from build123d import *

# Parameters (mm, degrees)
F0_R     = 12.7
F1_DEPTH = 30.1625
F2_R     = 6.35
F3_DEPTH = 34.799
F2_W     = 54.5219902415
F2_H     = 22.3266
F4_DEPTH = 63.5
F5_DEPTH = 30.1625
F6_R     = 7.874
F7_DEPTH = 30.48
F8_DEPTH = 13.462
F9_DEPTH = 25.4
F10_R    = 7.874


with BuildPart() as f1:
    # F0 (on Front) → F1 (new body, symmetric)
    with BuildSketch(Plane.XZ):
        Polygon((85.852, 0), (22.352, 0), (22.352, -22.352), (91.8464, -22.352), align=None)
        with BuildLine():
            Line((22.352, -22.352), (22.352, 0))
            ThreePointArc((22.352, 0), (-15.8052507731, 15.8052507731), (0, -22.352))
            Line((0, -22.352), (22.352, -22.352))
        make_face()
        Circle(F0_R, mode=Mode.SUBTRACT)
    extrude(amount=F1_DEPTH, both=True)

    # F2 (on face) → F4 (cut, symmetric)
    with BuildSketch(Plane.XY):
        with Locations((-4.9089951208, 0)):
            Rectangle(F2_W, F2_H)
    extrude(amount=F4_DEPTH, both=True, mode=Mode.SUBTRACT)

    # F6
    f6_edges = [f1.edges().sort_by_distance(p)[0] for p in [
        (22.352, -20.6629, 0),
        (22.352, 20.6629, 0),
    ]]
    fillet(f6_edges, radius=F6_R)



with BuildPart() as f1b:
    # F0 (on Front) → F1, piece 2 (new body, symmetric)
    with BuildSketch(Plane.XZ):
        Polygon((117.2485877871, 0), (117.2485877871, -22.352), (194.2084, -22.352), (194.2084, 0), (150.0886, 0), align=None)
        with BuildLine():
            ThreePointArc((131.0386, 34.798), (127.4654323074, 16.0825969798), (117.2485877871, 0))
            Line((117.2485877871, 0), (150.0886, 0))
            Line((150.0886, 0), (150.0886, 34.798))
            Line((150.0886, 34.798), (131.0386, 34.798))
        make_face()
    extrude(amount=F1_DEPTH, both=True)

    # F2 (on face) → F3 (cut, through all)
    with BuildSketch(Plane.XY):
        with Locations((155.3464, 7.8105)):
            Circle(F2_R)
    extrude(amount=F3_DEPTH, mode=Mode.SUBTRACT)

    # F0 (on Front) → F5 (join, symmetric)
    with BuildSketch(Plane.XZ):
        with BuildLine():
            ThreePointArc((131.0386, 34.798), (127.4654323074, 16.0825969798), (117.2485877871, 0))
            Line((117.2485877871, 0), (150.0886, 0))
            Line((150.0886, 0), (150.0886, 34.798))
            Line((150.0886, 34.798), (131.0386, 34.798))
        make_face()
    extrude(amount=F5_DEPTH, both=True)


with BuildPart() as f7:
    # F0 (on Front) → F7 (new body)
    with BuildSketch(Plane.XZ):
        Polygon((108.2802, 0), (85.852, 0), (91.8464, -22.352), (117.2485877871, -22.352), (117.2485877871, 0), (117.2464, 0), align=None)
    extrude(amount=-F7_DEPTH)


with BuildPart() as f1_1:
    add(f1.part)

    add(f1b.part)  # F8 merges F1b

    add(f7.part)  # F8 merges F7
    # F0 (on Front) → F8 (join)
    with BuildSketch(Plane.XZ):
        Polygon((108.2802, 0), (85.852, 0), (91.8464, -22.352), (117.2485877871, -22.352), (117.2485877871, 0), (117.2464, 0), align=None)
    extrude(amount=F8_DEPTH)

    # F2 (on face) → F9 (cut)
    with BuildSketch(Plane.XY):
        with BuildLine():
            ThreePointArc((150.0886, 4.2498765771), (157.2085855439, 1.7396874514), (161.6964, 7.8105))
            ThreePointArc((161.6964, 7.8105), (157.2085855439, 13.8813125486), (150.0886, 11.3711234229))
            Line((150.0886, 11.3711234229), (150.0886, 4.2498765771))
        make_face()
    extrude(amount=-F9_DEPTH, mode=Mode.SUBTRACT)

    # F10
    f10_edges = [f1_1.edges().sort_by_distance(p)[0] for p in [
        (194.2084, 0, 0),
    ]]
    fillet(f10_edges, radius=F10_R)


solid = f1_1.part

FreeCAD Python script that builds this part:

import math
import FreeCAD as App
import Part
import Sketcher

V = App.Vector
Q = App.Units.Quantity


def edges_at(feature, points):
    """Names of the edges that pass closest to the given points."""
    edges = feature.Shape.Edges
    near = lambda p: min(range(len(edges)), key=lambda i: edges[i].distToShape(Part.Vertex(*p))[0])
    return sorted({f"Edge{near(p) + 1}" for p in points})


def add_polygon(sketch, points):
    """Adds a closed chain of lines whose ends are joined by coincident constraints."""
    first, n = sketch.GeometryCount, len(points)
    for a, b in zip(points, points[1:] + points[:1]):
        sketch.addGeometry(Part.LineSegment(App.Vector(*a, 0), App.Vector(*b, 0)), False)
    for i in range(n):
        sketch.addConstraint(Sketcher.Constraint("Coincident", first + i, 2, first + (i + 1) % n, 1))

doc = App.newDocument("Part")
body = doc.addObject("PartDesign::Body", "Body")

sketch1 = body.newObject("Sketcher::SketchObject", "Sketch")
sketch1.AttachmentSupport = (doc.getObject("XZ_Plane"), [""])
sketch1.MapMode = "FlatFace"
sketch1.addGeometry([
    Part.LineSegment(V(85.852, 0, 0), V(22.352, 0, 0)),
    Part.ArcOfCircle(Part.Circle(V(0, 0, 0), V(0, 0, 1), 22.352), math.radians(0), math.radians(270)),
    Part.LineSegment(V(0, -22.352, 0), V(91.8464, -22.352, 0)),
    Part.LineSegment(V(91.8464, -22.352, 0), V(85.852, 0, 0)),
    Part.Circle(V(0, 0, 0), V(0, 0, 1), 12.7),
], False)
sketch1.addConstraint([
    Sketcher.Constraint("Coincident", 0, 2, 1, 1),
    Sketcher.Constraint("Tangent", 1, 2, 2, 1),
    Sketcher.Constraint("Coincident", 2, 2, 3, 1),
    Sketcher.Constraint("Coincident", 3, 2, 0, 1),
    Sketcher.Constraint("Horizontal", 0),
    Sketcher.Constraint("Horizontal", 2),
    Sketcher.Constraint("Coincident", 1, 3, -1, 1),
    Sketcher.Constraint("Coincident", 4, 3, -1, 1),
    Sketcher.Constraint("PointOnObject", 0, 2, -1),
    Sketcher.Constraint("Diameter", 4, Q("1 in")),
    Sketcher.Constraint("Radius", 1, Q("0.88 in")),
    Sketcher.Constraint("DistanceX", 0, 2, 0, 1, Q("2.5 in")),
    Sketcher.Constraint("DistanceX", 2, 1, 2, 2, Q("3.616 in")),
])
pad1 = body.newObject("PartDesign::Pad", "Pad")
pad1.Profile = sketch1
pad1.Length = Q("2.375 in")
pad1.Midplane = True

sketch2 = body.newObject("Sketcher::SketchObject", "Sketch001")
sketch2.AttachmentSupport = (doc.getObject("XY_Plane"), [""])
sketch2.MapMode = "FlatFace"
add_polygon(sketch2, [(-32.16999, 11.1633), (-32.16999, -11.1633), (22.352, -11.1633), (22.352, 11.1633)])
sketch2.addConstraint([
    Sketcher.Constraint("Vertical", 0),
    Sketcher.Constraint("Horizontal", 1),
    Sketcher.Constraint("Vertical", 2),
    Sketcher.Constraint("Horizontal", 3),
    Sketcher.Constraint("DistanceY", 0, 2, 0, 1, Q("0.879 in")),
    Sketcher.Constraint("DistanceX", -1, 1, 1, 2, Q("0.88 in")),
    Sketcher.Constraint("DistanceY", 0, 2, -1, 1, Q("0.4395 in")),
    Sketcher.Constraint("DistanceX", 1, 1, 1, 2, Q("54.52199 mm")),
])
pocket1 = body.newObject("PartDesign::Pocket", "Pocket")
pocket1.Profile = sketch2
pocket1.Length = Q("5 in")
pocket1.Midplane = True
doc.recompute()

fillet = body.newObject("PartDesign::Fillet", "Fillet")
fillet.Base = (pocket1, edges_at(pocket1, [(22.352, -20.663, 0), (22.352, 20.663, 0)]))
fillet.Radius = Q("0.31 in")
body2 = doc.addObject("PartDesign::Body", "Body001")

sketch3 = body2.newObject("Sketcher::SketchObject", "Sketch002")
sketch3.AttachmentSupport = (doc.getObject("XZ_Plane001"), [""])
sketch3.MapMode = "FlatFace"
sketch3.addGeometry([
    Part.LineSegment(V(117.248588, 0, 0), V(117.248588, -22.352, 0)),
    Part.LineSegment(V(117.248588, -22.352, 0), V(194.2084, -22.352, 0)),
    Part.LineSegment(V(194.2084, -22.352, 0), V(194.2084, 0, 0)),
    Part.LineSegment(V(194.2084, 0, 0), V(150.0886, 0, 0)),
    Part.LineSegment(V(150.0886, 0, 0), V(150.0886, 34.798, 0)),
    Part.LineSegment(V(150.0886, 34.798, 0), V(131.0386, 34.798, 0)),
    Part.ArcOfCircle(Part.Circle(V(80.2386, 34.798, 0), V(0, 0, 1), 50.8), math.radians(-43.235607), math.radians(0)),
], False)
sketch3.addConstraint([
    Sketcher.Constraint("Coincident", 0, 2, 1, 1),
    Sketcher.Constraint("Coincident", 1, 2, 2, 1),
    Sketcher.Constraint("Coincident", 2, 2, 3, 1),
    Sketcher.Constraint("Coincident", 3, 2, 4, 1),
    Sketcher.Constraint("Coincident", 4, 2, 5, 1),
    Sketcher.Constraint("Coincident", 5, 2, 6, 2),
    Sketcher.Constraint("Coincident", 6, 1, 0, 1),
    Sketcher.Constraint("Vertical", 0),
    Sketcher.Constraint("Horizontal", 1),
    Sketcher.Constraint("Vertical", 2),
    Sketcher.Constraint("Horizontal", 3),
    Sketcher.Constraint("Vertical", 4),
    Sketcher.Constraint("Horizontal", 5),
    Sketcher.Constraint("PointOnObject", 2, 2, -1),
    Sketcher.Constraint("PointOnObject", 6, 1, -1),
    Sketcher.Constraint("Horizontal", 6, 3, 4, 2),
    Sketcher.Constraint("Radius", 6, Q("2 in")),
    Sketcher.Constraint("DistanceX", 5, 2, 5, 1, Q("0.75 in")),
    Sketcher.Constraint("DistanceY", 0, 2, 0, 1, Q("0.88 in")),
    Sketcher.Constraint("DistanceY", 4, 1, 4, 2, Q("1.37 in")),
    Sketcher.Constraint("DistanceX", 3, 2, 3, 1, Q("1.737 in")),
    Sketcher.Constraint("DistanceX", -1, 1, 6, 3, Q("3.159 in")),
])
pad2 = body2.newObject("PartDesign::Pad", "Pad001")
pad2.Profile = sketch3
pad2.Length = Q("2.375 in")
pad2.Midplane = True

sketch4 = body2.newObject("Sketcher::SketchObject", "Sketch003")
sketch4.AttachmentSupport = (doc.getObject("XY_Plane001"), [""])
sketch4.MapMode = "FlatFace"
sketch4.addGeometry(Part.Circle(V(155.3464, 7.8105, 0), V(0, 0, 1), 6.35), False)
sketch4.addConstraint([
    Sketcher.Constraint("Diameter", 0, Q("0.5 in")),
    Sketcher.Constraint("DistanceX", -1, 1, 0, 3, Q("6.116 in")),
    Sketcher.Constraint("DistanceY", -1, 1, 0, 3, Q("0.3075 in")),
])
pocket2 = body2.newObject("PartDesign::Pocket", "Pocket001")
pocket2.Profile = sketch4
pocket2.Type = "ThroughAll"
pocket2.Reversed = True

sketch5 = body2.newObject("Sketcher::SketchObject", "Sketch004")
sketch5.AttachmentSupport = (doc.getObject("XZ_Plane001"), [""])
sketch5.MapMode = "FlatFace"
sketch5.addGeometry([
    Part.ArcOfCircle(Part.Circle(V(80.2386, 34.798, 0), V(0, 0, 1), 50.8), math.radians(-43.235607), math.radians(0)),
    Part.LineSegment(V(117.248588, 0, 0), V(150.0886, 0, 0)),
    Part.LineSegment(V(150.0886, 0, 0), V(150.0886, 34.798, 0)),
    Part.LineSegment(V(150.0886, 34.798, 0), V(131.0386, 34.798, 0)),
], False)
sketch5.addConstraint([
    Sketcher.Constraint("Coincident", 0, 1, 1, 1),
    Sketcher.Constraint("Coincident", 1, 2, 2, 1),
    Sketcher.Constraint("Coincident", 2, 2, 3, 1),
    Sketcher.Constraint("Coincident", 3, 2, 0, 2),
    Sketcher.Constraint("Horizontal", 1),
    Sketcher.Constraint("Vertical", 2),
    Sketcher.Constraint("Horizontal", 3),
    Sketcher.Constraint("PointOnObject", 0, 1, -1),
    Sketcher.Constraint("Horizontal", 0, 3, 2, 2),
    Sketcher.Constraint("Radius", 0, Q("2 in")),
    Sketcher.Constraint("DistanceX", 3, 2, 3, 1, Q("0.75 in")),
    Sketcher.Constraint("DistanceY", 2, 1, 2, 2, Q("1.37 in")),
    Sketcher.Constraint("DistanceX", -1, 1, 0, 3, Q("3.159 in")),
])
pad3 = body2.newObject("PartDesign::Pad", "Pad002")
pad3.Profile = sketch5
pad3.Length = Q("2.375 in")
pad3.Midplane = True
body3 = doc.addObject("PartDesign::Body", "Body002")

sketch6 = body3.newObject("Sketcher::SketchObject", "Sketch005")
sketch6.AttachmentSupport = (doc.getObject("XZ_Plane002"), [""])
sketch6.MapMode = "FlatFace"
add_polygon(sketch6, [(85.852, 0), (91.8464, -22.352), (117.248588, -22.352), (117.248588, 0)])
sketch6.addConstraint([
    Sketcher.Constraint("Horizontal", 1),
    Sketcher.Constraint("Vertical", 2),
    Sketcher.Constraint("Horizontal", 3),
    Sketcher.Constraint("PointOnObject", 2, 2, -1),
    Sketcher.Constraint("DistanceY", 2, 1, 2, 2, Q("0.88 in")),
    Sketcher.Constraint("DistanceX", -1, 1, 3, 2, Q("3.38 in")),
    Sketcher.Constraint("DistanceX", -1, 1, 0, 2, Q("3.616 in")),
    Sketcher.Constraint("DistanceX", 1, 1, 1, 2, Q("25.402188 mm")),
])
pad4 = body3.newObject("PartDesign::Pad", "Pad003")
pad4.Profile = sketch6
pad4.Length = Q("1.2 in")
pad4.Reversed = True
body.AllowCompound = True
doc.recompute()

boolean = body.newObject("PartDesign::Boolean", "Boolean")
boolean.Type = "Fuse"
boolean.addObjects([body2])
doc.recompute()

boolean2 = body.newObject("PartDesign::Boolean", "Boolean001")
boolean2.Type = "Fuse"
boolean2.addObjects([body3])

sketch7 = body.newObject("Sketcher::SketchObject", "Sketch006")
sketch7.AttachmentSupport = (doc.getObject("XZ_Plane"), [""])
sketch7.MapMode = "FlatFace"
add_polygon(sketch7, [(85.852, 0), (91.8464, -22.352), (117.248588, -22.352), (117.248588, 0)])
sketch7.addConstraint([
    Sketcher.Constraint("Horizontal", 1),
    Sketcher.Constraint("Vertical", 2),
    Sketcher.Constraint("Horizontal", 3),
    Sketcher.Constraint("PointOnObject", 2, 2, -1),
    Sketcher.Constraint("DistanceY", 2, 1, 2, 2, Q("0.88 in")),
    Sketcher.Constraint("DistanceX", -1, 1, 3, 2, Q("3.38 in")),
    Sketcher.Constraint("DistanceX", -1, 1, 0, 2, Q("3.616 in")),
    Sketcher.Constraint("DistanceX", 1, 1, 1, 2, Q("25.402188 mm")),
])
pad5 = body.newObject("PartDesign::Pad", "Pad004")
pad5.Profile = sketch7
pad5.Length = Q("0.53 in")

sketch8 = body.newObject("Sketcher::SketchObject", "Sketch007")
sketch8.AttachmentSupport = (doc.getObject("XY_Plane"), [""])
sketch8.MapMode = "FlatFace"
sketch8.addGeometry([
    Part.ArcOfCircle(Part.Circle(V(155.3464, 7.8105, 0), V(0, 0, 1), 6.35), math.radians(-145.893834), math.radians(0)),
    Part.ArcOfCircle(Part.Circle(V(155.3464, 7.8105, 0), V(0, 0, 1), 6.35), math.radians(0), math.radians(145.893834)),
    Part.LineSegment(V(150.0886, 11.371123, 0), V(150.0886, 4.249877, 0)),
], False)
sketch8.addConstraint([
    Sketcher.Constraint("Tangent", 0, 2, 1, 1),
    Sketcher.Constraint("Coincident", 1, 2, 2, 1),
    Sketcher.Constraint("Coincident", 2, 2, 0, 1),
    Sketcher.Constraint("Vertical", 2),
    Sketcher.Constraint("Equal", 0, 1),
    Sketcher.Constraint("Horizontal", 1, 3, 0, 2),
    Sketcher.Constraint("Radius", 0, Q("0.25 in")),
    Sketcher.Constraint("DistanceX", -1, 1, 0, 3, Q("6.116 in")),
    Sketcher.Constraint("DistanceX", -1, 1, 1, 2, Q("5.909 in")),
    Sketcher.Constraint("DistanceY", -1, 1, 0, 3, Q("0.3075 in")),
])
pocket3 = body.newObject("PartDesign::Pocket", "Pocket002")
pocket3.Profile = sketch8
pocket3.Length = Q("1 in")
doc.recompute()

fillet2 = body.newObject("PartDesign::Fillet", "Fillet001")
fillet2.Base = (pocket3, edges_at(pocket3, [(194.208, 0, 0)]))
fillet2.Radius = Q("0.31 in")

doc.recompute()
